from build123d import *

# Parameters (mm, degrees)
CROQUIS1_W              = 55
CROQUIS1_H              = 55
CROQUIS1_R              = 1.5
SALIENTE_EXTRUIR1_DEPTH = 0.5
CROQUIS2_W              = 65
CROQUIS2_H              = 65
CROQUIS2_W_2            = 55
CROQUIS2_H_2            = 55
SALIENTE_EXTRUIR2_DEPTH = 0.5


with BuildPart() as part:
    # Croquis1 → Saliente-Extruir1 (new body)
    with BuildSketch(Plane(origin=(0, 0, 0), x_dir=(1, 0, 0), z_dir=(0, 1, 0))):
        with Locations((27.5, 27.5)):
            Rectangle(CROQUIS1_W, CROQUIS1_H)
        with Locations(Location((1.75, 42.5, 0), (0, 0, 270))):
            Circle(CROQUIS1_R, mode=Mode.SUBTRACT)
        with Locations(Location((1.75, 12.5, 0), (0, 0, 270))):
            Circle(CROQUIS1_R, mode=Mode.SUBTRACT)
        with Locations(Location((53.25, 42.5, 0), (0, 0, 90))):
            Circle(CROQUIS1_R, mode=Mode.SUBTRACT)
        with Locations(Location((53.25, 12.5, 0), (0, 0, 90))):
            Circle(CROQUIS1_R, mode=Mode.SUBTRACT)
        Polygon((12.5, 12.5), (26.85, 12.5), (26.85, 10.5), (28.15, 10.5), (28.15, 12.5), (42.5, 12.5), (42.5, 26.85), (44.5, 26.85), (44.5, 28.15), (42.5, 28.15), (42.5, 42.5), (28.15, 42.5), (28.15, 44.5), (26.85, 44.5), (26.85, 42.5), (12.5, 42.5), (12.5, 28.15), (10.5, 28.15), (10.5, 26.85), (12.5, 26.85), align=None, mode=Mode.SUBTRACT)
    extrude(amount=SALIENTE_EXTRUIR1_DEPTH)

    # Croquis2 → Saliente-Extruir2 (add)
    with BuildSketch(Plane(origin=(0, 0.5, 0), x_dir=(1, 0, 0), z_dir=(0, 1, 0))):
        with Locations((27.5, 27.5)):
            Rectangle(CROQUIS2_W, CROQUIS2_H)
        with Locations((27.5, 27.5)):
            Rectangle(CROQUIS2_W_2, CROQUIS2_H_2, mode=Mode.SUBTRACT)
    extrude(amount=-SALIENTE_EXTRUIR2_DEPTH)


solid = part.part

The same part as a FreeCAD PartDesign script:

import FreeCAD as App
import Part
import Sketcher

V = App.Vector
Q = App.Units.Quantity

doc = App.newDocument("Part")
body = doc.addObject("PartDesign::Body", "Body")

# Sketch on XZ plane
sketch1 = body.newObject("Sketcher::SketchObject", "Sketch")
sketch1.AttachmentSupport = (doc.getObject("XZ_Plane"), [""])
sketch1.MapMode = "FlatFace"
sketch1.addGeometry(Part.LineSegment(V(0, -55, 0), V(0, 0, 0)), False)
sketch1.addGeometry(Part.LineSegment(V(0, 0, 0), V(55, 0, 0)), False)
sketch1.addGeometry(Part.LineSegment(V(55, 0, 0), V(55, -55, 0)), False)
sketch1.addGeometry(Part.LineSegment(V(55, -55, 0), V(0, -55, 0)), False)
sketch1.addGeometry(Part.Circle(V(1.8, -12.5, 0), V(0, 0, 1), 1.5), False)
sketch1.addGeometry(Part.Circle(V(53.2, -12.5, 0), V(0, 0, 1), 1.5), False)
sketch1.addGeometry(Part.Circle(V(1.8, -42.5, 0), V(0, 0, 1), 1.5), False)
sketch1.addGeometry(Part.LineSegment(V(26.9, -12.5, 0), V(12.5, -12.5, 0)), False)
sketch1.addGeometry(Part.LineSegment(V(12.5, -12.5, 0), V(12.5, -26.9, 0)), False)
sketch1.addGeometry(Part.LineSegment(V(12.5, -26.9, 0), V(10.5, -26.9, 0)), False)
sketch1.addGeometry(Part.LineSegment(V(10.5, -26.9, 0), V(10.5, -28.1, 0)), False)
sketch1.addGeometry(Part.LineSegment(V(10.5, -28.1, 0), V(12.5, -28.1, 0)), False)
sketch1.addGeometry(Part.LineSegment(V(12.5, -28.1, 0), V(12.5, -42.5, 0)), False)
sketch1.addGeometry(Part.LineSegment(V(12.5, -42.5, 0), V(26.9, -42.5, 0)), False)
sketch1.addGeometry(Part.LineSegment(V(26.9, -42.5, 0), V(26.9, -44.5, 0)), False)
sketch1.addGeometry(Part.LineSegment(V(26.9, -44.5, 0), V(28.1, -44.5, 0)), False)
sketch1.addGeometry(Part.LineSegment(V(28.1, -44.5, 0), V(28.1, -42.5, 0)), False)
sketch1.addGeometry(Part.LineSegment(V(28.1, -42.5, 0), V(42.5, -42.5, 0)), False)
sketch1.addGeometry(Part.LineSegment(V(42.5, -42.5, 0), V(42.5, -28.1, 0)), False)
sketch1.addGeometry(Part.LineSegment(V(42.5, -28.1, 0), V(44.5, -28.1, 0)), False)
sketch1.addGeometry(Part.LineSegment(V(44.5, -28.1, 0), V(44.5, -26.9, 0)), False)
sketch1.addGeometry(Part.LineSegment(V(44.5, -26.9, 0), V(42.5, -26.9, 0)), False)
sketch1.addGeometry(Part.LineSegment(V(42.5, -26.9, 0), V(42.5, -12.5, 0)), False)
sketch1.addGeometry(Part.LineSegment(V(42.5, -12.5, 0), V(28.1, -12.5, 0)), False)
sketch1.addGeometry(Part.LineSegment(V(28.1, -12.5, 0), V(28.1, -10.5, 0)), False)
sketch1.addGeometry(Part.LineSegment(V(28.1, -10.5, 0), V(26.9, -10.5, 0)), False)
sketch1.addGeometry(Part.LineSegment(V(26.9, -10.5, 0), V(26.9, -12.5, 0)), False)
sketch1.addGeometry(Part.Circle(V(53.2, -42.5, 0), V(0, 0, 1), 1.5), False)
sketch1.addConstraint(Sketcher.Constraint("Coincident", 0, 2, 1, 1))
sketch1.addConstraint(Sketcher.Constraint("Coincident", 1, 2, 2, 1))
sketch1.addConstraint(Sketcher.Constraint("Coincident", 2, 2, 3, 1))
sketch1.addConstraint(Sketcher.Constraint("Coincident", 3, 2, 0, 1))
sketch1.addConstraint(Sketcher.Constraint("Coincident", 7, 2, 8, 1))
sketch1.addConstraint(Sketcher.Constraint("Coincident", 8, 2, 9, 1))
sketch1.addConstraint(Sketcher.Constraint("Coincident", 9, 2, 10, 1))
sketch1.addConstraint(Sketcher.Constraint("Coincident", 10, 2, 11, 1))
sketch1.addConstraint(Sketcher.Constraint("Coincident", 11, 2, 12, 1))
sketch1.addConstraint(Sketcher.Constraint("Coincident", 12, 2, 13, 1))
sketch1.addConstraint(Sketcher.Constraint("Coincident", 13, 2, 14, 1))
sketch1.addConstraint(Sketcher.Constraint("Coincident", 14, 2, 15, 1))
sketch1.addConstraint(Sketcher.Constraint("Coincident", 15, 2, 16, 1))
sketch1.addConstraint(Sketcher.Constraint("Coincident", 16, 2, 17, 1))
sketch1.addConstraint(Sketcher.Constraint("Coincident", 17, 2, 18, 1))
sketch1.addConstraint(Sketcher.Constraint("Coincident", 18, 2, 19, 1))
sketch1.addConstraint(Sketcher.Constraint("Coincident", 19, 2, 20, 1))
sketch1.addConstraint(Sketcher.Constraint("Coincident", 20, 2, 21, 1))
sketch1.addConstraint(Sketcher.Constraint("Coincident", 21, 2, 22, 1))
sketch1.addConstraint(Sketcher.Constraint("Coincident", 22, 2, 23, 1))
sketch1.addConstraint(Sketcher.Constraint("Coincident", 23, 2, 24, 1))
sketch1.addConstraint(Sketcher.Constraint("Coincident", 24, 2, 25, 1))
sketch1.addConstraint(Sketcher.Constraint("Coincident", 25, 2, 26, 1))
sketch1.addConstraint(Sketcher.Constraint("Coincident", 26, 2, 7, 1))
sketch1.addConstraint(Sketcher.Constraint("Vertical", 0))
sketch1.addConstraint(Sketcher.Constraint("Horizontal", 1))
sketch1.addConstraint(Sketcher.Constraint("Vertical", 2))
sketch1.addConstraint(Sketcher.Constraint("Horizontal", 3))
sketch1.addConstraint(Sketcher.Constraint("Horizontal", 7))
sketch1.addConstraint(Sketcher.Constraint("Vertical", 8))
sketch1.addConstraint(Sketcher.Constraint("Horizontal", 9))
sketch1.addConstraint(Sketcher.Constraint("Vertical", 10))
sketch1.addConstraint(Sketcher.Constraint("Horizontal", 11))
sketch1.addConstraint(Sketcher.Constraint("Vertical", 12))
sketch1.addConstraint(Sketcher.Constraint("Horizontal", 13))
sketch1.addConstraint(Sketcher.Constraint("Vertical", 14))
sketch1.addConstraint(Sketcher.Constraint("Horizontal", 15))
sketch1.addConstraint(Sketcher.Constraint("Vertical", 16))
sketch1.addConstraint(Sketcher.Constraint("Horizontal", 17))
sketch1.addConstraint(Sketcher.Constraint("Vertical", 18))
sketch1.addConstraint(Sketcher.Constraint("Horizontal", 19))
sketch1.addConstraint(Sketcher.Constraint("Vertical", 20))
sketch1.addConstraint(Sketcher.Constraint("Horizontal", 21))
sketch1.addConstraint(Sketcher.Constraint("Vertical", 22))
sketch1.addConstraint(Sketcher.Constraint("Horizontal", 23))
sketch1.addConstraint(Sketcher.Constraint("Vertical", 24))
sketch1.addConstraint(Sketcher.Constraint("Horizontal", 25))
sketch1.addConstraint(Sketcher.Constraint("Vertical", 26))
sketch1.addConstraint(Sketcher.Constraint("Coincident", 0, 2, -1, 1))
sketch1.addConstraint(Sketcher.Constraint("Equal", 4, 5))
sketch1.addConstraint(Sketcher.Constraint("Equal", 5, 6))
sketch1.addConstraint(Sketcher.Constraint("Equal", 6, 27))
sketch1.addConstraint(Sketcher.Constraint("Horizontal", 4, 3, 5, 3))
sketch1.addConstraint(Sketcher.Constraint("Horizontal", 6, 3, 27, 3))
sketch1.addConstraint(Sketcher.Constraint("Horizontal", 5, 3, 7, 2))
sketch1.addConstraint(Sketcher.Constraint("Horizontal", 27, 3, 12, 2))
sketch1.addConstraint(Sketcher.Constraint("Horizontal", 13, 2, 16, 2))
sketch1.addConstraint(Sketcher.Constraint("Horizontal", 11, 2, 18, 2))
sketch1.addConstraint(Sketcher.Constraint("Horizontal", 9, 2, 20, 2))
sketch1.addConstraint(Sketcher.Constraint("Horizontal", 7, 2, 22, 2))
sketch1.addConstraint(Sketcher.Constraint("Vertical", 4, 3, 6, 3))
sketch1.addConstraint(Sketcher.Constraint("Vertical", 5, 3, 27, 3))
sketch1.addConstraint(Sketcher.Constraint("Vertical", 8, 2, 11, 2))
sketch1.addConstraint(Sketcher.Constraint("Vertical", 18, 2, 21, 2))
sketch1.addConstraint(Sketcher.Constraint("Vertical", 16, 2, 23, 2))
sketch1.addConstraint(Sketcher.Constraint("Vertical", 14, 2, 25, 2))
sketch1.addConstraint(Sketcher.Constraint("Equal", 13, 17))
sketch1.addConstraint(Sketcher.Constraint("Equal", 11, 19))
sketch1.addConstraint(Sketcher.Constraint("Equal", 3, 0))
sketch1.addConstraint(Sketcher.Constraint("Equal", 23, 8))
sketch1.addConstraint(Sketcher.Constraint("Equal", 25, 10))
sketch1.addConstraint(Sketcher.Constraint("Equal", 8, 12))
sketch1.addConstraint(Sketcher.Constraint("Equal", 21, 14))
sketch1.addConstraint(Sketcher.Constraint("Equal", 16, 24))
sketch1.addConstraint(Sketcher.Constraint("Diameter", 4, Q("3 mm")))
sketch1.addConstraint(Sketcher.Constraint("DistanceX", 1, 1, 1, 2, Q("55 mm")))
sketch1.addConstraint(Sketcher.Constraint("DistanceX", 9, 2, 9, 1, Q("2 mm")))
sketch1.addConstraint(Sketcher.Constraint("DistanceX", 15, 1, 15, 2, Q("1.3 mm")))
sketch1.addConstraint(Sketcher.Constraint("DistanceY", 6, 3, 4, 3, Q("30 mm")))
sketch1.addConstraint(Sketcher.Constraint("DistanceY", 4, 3, -1, 1, Q("12.5 mm")))
sketch1.addConstraint(Sketcher.Constraint("DistanceX", -1, 1, 7, 2, Q("12.5 mm")))
sketch1.addConstraint(Sketcher.Constraint("DistanceX", 4, 3, 5, 3, Q("51.5 mm")))
sketch1.addConstraint(Sketcher.Constraint("DistanceX", -1, 1, 4, 3, Q("1.75 mm")))
pad1 = body.newObject("PartDesign::Pad", "Pad")
pad1.Profile = sketch1
pad1.Length = 0.5
pad1.Reversed = True

# Sketch on XZ plane
sketch2 = body.newObject("Sketcher::SketchObject", "Sketch001")
sketch2.AttachmentSupport = (doc.getObject("XZ_Plane"), [""])
sketch2.MapMode = "FlatFace"
sketch2.AttachmentOffset = App.Placement(V(0, 0, -0.5), App.Rotation())
sketch2.addGeometry(Part.LineSegment(V(-5, -60, 0), V(-5, 5, 0)), False)
sketch2.addGeometry(Part.LineSegment(V(-5, 5, 0), V(60, 5, 0)), False)
sketch2.addGeometry(Part.LineSegment(V(60, 5, 0), V(60, -60, 0)), False)
sketch2.addGeometry(Part.LineSegment(V(60, -60, 0), V(-5, -60, 0)), False)
sketch2.addGeometry(Part.LineSegment(V(55, 0, 0), V(0, 0, 0)), False)
sketch2.addGeometry(Part.LineSegment(V(0, 0, 0), V(0, -55, 0)), False)
sketch2.addGeometry(Part.LineSegment(V(0, -55, 0), V(55, -55, 0)), False)
sketch2.addGeometry(Part.LineSegment(V(55, -55, 0), V(55, 0, 0)), False)
sketch2.addConstraint(Sketcher.Constraint("Coincident", 0, 2, 1, 1))
sketch2.addConstraint(Sketcher.Constraint("Coincident", 1, 2, 2, 1))
sketch2.addConstraint(Sketcher.Constraint("Coincident", 2, 2, 3, 1))
sketch2.addConstraint(Sketcher.Constraint("Coincident", 3, 2, 0, 1))
sketch2.addConstraint(Sketcher.Constraint("Coincident", 4, 2, 5, 1))
sketch2.addConstraint(Sketcher.Constraint("Coincident", 5, 2, 6, 1))
sketch2.addConstraint(Sketcher.Constraint("Coincident", 6, 2, 7, 1))
sketch2.addConstraint(Sketcher.Constraint("Coincident", 7, 2, 4, 1))
sketch2.addConstraint(Sketcher.Constraint("Vertical", 0))
sketch2.addConstraint(Sketcher.Constraint("Horizontal", 1))
sketch2.addConstraint(Sketcher.Constraint("Vertical", 2))
sketch2.addConstraint(Sketcher.Constraint("Horizontal", 3))
sketch2.addConstraint(Sketcher.Constraint("Horizontal", 4))
sketch2.addConstraint(Sketcher.Constraint("Vertical", 5))
sketch2.addConstraint(Sketcher.Constraint("Horizontal", 6))
sketch2.addConstraint(Sketcher.Constraint("Vertical", 7))
sketch2.addConstraint(Sketcher.Constraint("Coincident", 4, 2, -1, 1))
sketch2.addConstraint(Sketcher.Constraint("Equal", 3, 0))
sketch2.addConstraint(Sketcher.Constraint("Equal", 6, 5))
sketch2.addConstraint(Sketcher.Constraint("DistanceX", 1, 1, 1, 2, Q("65 mm")))
sketch2.addConstraint(Sketcher.Constraint("DistanceX", 4, 2, 4, 1, Q("55 mm")))
sketch2.addConstraint(Sketcher.Constraint("DistanceX", 0, 2, -1, 1, Q("5 mm")))
sketch2.addConstraint(Sketcher.Constraint("DistanceY", -1, 1, 0, 2, Q("5 mm")))
pad2 = body.newObject("PartDesign::Pad", "Pad001")
pad2.Profile = sketch2
pad2.Length = 0.5

doc.recompute()
